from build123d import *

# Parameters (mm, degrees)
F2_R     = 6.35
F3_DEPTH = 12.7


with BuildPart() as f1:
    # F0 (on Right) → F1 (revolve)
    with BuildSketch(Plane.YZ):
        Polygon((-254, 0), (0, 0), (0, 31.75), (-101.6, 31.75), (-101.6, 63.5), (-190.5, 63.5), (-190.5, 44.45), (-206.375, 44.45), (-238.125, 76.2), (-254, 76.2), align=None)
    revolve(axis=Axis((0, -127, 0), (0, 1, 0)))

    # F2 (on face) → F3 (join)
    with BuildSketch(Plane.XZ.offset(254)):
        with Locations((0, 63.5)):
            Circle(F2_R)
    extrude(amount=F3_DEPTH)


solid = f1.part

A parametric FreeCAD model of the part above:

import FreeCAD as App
import Part
import Sketcher
from FreeCAD import Vector
Q = App.Units.Quantity


def add_polygon(sketch, points):
    """Adds a closed chain of lines whose ends are joined by coincident constraints."""
    first, n = sketch.GeometryCount, len(points)
    for a, b in zip(points, points[1:] + points[:1]):
        sketch.addGeometry(Part.LineSegment(App.Vector(*a, 0), App.Vector(*b, 0)), False)
    for i in range(n):
        sketch.addConstraint(Sketcher.Constraint("Coincident", first + i, 2, first + (i + 1) % n, 1))

doc = App.newDocument("Part")
params = doc.addObject("Spreadsheet::Sheet", "Params")
for row, (alias, value) in enumerate([
    ("sketch1_width", "10 in"),
    ("sketch1_width2", "4 in"),
    ("sketch1_height", "3 in"),
    ("sketch1_width3", "3.5 in"),
    ("sketch1_height2", "1.25 in"),
    ("revolution_angle", "360 deg"),
    ("sketch2_diameter", "0.5 in"),
    ("pad1_length", "0.5 in"),
], start=1):
    params.set(f"A{row}", alias)
    params.set(f"B{row}", "=" + value)
    params.setAlias(f"B{row}", alias)

body = doc.addObject("PartDesign::Body", "Body")

# Sketch on YZ plane
sketch1 = body.newObject("Sketcher::SketchObject", "Sketch")
sketch1.AttachmentSupport = (doc.getObject("YZ_Plane"), [""])
sketch1.MapMode = "FlatFace"
add_polygon(sketch1, [(-254, 0), (0, 0), (0, 32), (-102, 32), (-102, 64), (-190, 64), (-190, 44), (-206, 44), (-238, 76), (-254, 76)])  # lines 0-9
sketch1.addConstraint(Sketcher.Constraint("Horizontal", 0))
sketch1.addConstraint(Sketcher.Constraint("Vertical", 1))
sketch1.addConstraint(Sketcher.Constraint("Horizontal", 2))
sketch1.addConstraint(Sketcher.Constraint("Vertical", 3))
sketch1.addConstraint(Sketcher.Constraint("Horizontal", 4))
sketch1.addConstraint(Sketcher.Constraint("Vertical", 5))
sketch1.addConstraint(Sketcher.Constraint("Horizontal", 6))
sketch1.addConstraint(Sketcher.Constraint("Horizontal", 8))
sketch1.addConstraint(Sketcher.Constraint("Vertical", 9))
sketch1.addConstraint(Sketcher.Constraint("Coincident", 0, 2, -1, 1))
sketch1.addConstraint(Sketcher.Constraint("Equal", 6, 8))
sketch1.addConstraint(Sketcher.Constraint("Equal", 1, 3))
sketch1.addConstraint(Sketcher.Constraint("DistanceX", 0, 1, 0, 2, Q("10 in")))
sketch1.addConstraint(Sketcher.Constraint("DistanceX", 2, 2, 2, 1, Q("4 in")))
sketch1.addConstraint(Sketcher.Constraint("DistanceY", 9, 2, 9, 1, Q("3 in")))
sketch1.addConstraint(Sketcher.Constraint("DistanceX", 4, 2, 4, 1, Q("3.5 in")))
sketch1.addConstraint(Sketcher.Constraint("Angle", 7, Q("135 deg")))
sketch1.addConstraint(Sketcher.Constraint("DistanceY", 1, 1, 1, 2, Q("1.25 in")))
sketch1.addConstraint(Sketcher.Constraint("DistanceY", 5, 2, 5, 1, Q("0.75 in")))
sketch1.setExpression("Constraints[22]", "Params.sketch1_width")
sketch1.setExpression("Constraints[23]", "Params.sketch1_width2")
sketch1.setExpression("Constraints[24]", "Params.sketch1_height")
sketch1.setExpression("Constraints[25]", "Params.sketch1_width3")
sketch1.setExpression("Constraints[27]", "Params.sketch1_height2")
revolution = body.newObject("PartDesign::Revolution", "Revolution")
revolution.Profile = sketch1
revolution.ReferenceAxis = (sketch1, ["H_Axis"])
revolution.setExpression("Angle", "Params.revolution_angle")

# Sketch on XZ plane
sketch2 = body.newObject("Sketcher::SketchObject", "Sketch001")
sketch2.AttachmentSupport = (doc.getObject("XZ_Plane"), [""])
sketch2.MapMode = "FlatFace"
sketch2.AttachmentOffset = App.Placement(Vector(0, 0, 10 * 25.4), App.Rotation())
sketch2.addGeometry(Part.Circle(Vector(0, 64, 0), Vector(0, 0, 1), 6), False)
sketch2.addConstraint(Sketcher.Constraint("PointOnObject", 0, 3, -2))
sketch2.addConstraint(Sketcher.Constraint("Diameter", 0, Q("0.5 in")))
sketch2.addConstraint(Sketcher.Constraint("DistanceY", -1, 1, 0, 3, Q("2.5 in")))
sketch2.setExpression("Constraints[1]", "Params.sketch2_diameter")
pad1 = body.newObject("PartDesign::Pad", "Pad")
pad1.Profile = sketch2
pad1.setExpression("Length", "Params.pad1_length")

doc.recompute()
